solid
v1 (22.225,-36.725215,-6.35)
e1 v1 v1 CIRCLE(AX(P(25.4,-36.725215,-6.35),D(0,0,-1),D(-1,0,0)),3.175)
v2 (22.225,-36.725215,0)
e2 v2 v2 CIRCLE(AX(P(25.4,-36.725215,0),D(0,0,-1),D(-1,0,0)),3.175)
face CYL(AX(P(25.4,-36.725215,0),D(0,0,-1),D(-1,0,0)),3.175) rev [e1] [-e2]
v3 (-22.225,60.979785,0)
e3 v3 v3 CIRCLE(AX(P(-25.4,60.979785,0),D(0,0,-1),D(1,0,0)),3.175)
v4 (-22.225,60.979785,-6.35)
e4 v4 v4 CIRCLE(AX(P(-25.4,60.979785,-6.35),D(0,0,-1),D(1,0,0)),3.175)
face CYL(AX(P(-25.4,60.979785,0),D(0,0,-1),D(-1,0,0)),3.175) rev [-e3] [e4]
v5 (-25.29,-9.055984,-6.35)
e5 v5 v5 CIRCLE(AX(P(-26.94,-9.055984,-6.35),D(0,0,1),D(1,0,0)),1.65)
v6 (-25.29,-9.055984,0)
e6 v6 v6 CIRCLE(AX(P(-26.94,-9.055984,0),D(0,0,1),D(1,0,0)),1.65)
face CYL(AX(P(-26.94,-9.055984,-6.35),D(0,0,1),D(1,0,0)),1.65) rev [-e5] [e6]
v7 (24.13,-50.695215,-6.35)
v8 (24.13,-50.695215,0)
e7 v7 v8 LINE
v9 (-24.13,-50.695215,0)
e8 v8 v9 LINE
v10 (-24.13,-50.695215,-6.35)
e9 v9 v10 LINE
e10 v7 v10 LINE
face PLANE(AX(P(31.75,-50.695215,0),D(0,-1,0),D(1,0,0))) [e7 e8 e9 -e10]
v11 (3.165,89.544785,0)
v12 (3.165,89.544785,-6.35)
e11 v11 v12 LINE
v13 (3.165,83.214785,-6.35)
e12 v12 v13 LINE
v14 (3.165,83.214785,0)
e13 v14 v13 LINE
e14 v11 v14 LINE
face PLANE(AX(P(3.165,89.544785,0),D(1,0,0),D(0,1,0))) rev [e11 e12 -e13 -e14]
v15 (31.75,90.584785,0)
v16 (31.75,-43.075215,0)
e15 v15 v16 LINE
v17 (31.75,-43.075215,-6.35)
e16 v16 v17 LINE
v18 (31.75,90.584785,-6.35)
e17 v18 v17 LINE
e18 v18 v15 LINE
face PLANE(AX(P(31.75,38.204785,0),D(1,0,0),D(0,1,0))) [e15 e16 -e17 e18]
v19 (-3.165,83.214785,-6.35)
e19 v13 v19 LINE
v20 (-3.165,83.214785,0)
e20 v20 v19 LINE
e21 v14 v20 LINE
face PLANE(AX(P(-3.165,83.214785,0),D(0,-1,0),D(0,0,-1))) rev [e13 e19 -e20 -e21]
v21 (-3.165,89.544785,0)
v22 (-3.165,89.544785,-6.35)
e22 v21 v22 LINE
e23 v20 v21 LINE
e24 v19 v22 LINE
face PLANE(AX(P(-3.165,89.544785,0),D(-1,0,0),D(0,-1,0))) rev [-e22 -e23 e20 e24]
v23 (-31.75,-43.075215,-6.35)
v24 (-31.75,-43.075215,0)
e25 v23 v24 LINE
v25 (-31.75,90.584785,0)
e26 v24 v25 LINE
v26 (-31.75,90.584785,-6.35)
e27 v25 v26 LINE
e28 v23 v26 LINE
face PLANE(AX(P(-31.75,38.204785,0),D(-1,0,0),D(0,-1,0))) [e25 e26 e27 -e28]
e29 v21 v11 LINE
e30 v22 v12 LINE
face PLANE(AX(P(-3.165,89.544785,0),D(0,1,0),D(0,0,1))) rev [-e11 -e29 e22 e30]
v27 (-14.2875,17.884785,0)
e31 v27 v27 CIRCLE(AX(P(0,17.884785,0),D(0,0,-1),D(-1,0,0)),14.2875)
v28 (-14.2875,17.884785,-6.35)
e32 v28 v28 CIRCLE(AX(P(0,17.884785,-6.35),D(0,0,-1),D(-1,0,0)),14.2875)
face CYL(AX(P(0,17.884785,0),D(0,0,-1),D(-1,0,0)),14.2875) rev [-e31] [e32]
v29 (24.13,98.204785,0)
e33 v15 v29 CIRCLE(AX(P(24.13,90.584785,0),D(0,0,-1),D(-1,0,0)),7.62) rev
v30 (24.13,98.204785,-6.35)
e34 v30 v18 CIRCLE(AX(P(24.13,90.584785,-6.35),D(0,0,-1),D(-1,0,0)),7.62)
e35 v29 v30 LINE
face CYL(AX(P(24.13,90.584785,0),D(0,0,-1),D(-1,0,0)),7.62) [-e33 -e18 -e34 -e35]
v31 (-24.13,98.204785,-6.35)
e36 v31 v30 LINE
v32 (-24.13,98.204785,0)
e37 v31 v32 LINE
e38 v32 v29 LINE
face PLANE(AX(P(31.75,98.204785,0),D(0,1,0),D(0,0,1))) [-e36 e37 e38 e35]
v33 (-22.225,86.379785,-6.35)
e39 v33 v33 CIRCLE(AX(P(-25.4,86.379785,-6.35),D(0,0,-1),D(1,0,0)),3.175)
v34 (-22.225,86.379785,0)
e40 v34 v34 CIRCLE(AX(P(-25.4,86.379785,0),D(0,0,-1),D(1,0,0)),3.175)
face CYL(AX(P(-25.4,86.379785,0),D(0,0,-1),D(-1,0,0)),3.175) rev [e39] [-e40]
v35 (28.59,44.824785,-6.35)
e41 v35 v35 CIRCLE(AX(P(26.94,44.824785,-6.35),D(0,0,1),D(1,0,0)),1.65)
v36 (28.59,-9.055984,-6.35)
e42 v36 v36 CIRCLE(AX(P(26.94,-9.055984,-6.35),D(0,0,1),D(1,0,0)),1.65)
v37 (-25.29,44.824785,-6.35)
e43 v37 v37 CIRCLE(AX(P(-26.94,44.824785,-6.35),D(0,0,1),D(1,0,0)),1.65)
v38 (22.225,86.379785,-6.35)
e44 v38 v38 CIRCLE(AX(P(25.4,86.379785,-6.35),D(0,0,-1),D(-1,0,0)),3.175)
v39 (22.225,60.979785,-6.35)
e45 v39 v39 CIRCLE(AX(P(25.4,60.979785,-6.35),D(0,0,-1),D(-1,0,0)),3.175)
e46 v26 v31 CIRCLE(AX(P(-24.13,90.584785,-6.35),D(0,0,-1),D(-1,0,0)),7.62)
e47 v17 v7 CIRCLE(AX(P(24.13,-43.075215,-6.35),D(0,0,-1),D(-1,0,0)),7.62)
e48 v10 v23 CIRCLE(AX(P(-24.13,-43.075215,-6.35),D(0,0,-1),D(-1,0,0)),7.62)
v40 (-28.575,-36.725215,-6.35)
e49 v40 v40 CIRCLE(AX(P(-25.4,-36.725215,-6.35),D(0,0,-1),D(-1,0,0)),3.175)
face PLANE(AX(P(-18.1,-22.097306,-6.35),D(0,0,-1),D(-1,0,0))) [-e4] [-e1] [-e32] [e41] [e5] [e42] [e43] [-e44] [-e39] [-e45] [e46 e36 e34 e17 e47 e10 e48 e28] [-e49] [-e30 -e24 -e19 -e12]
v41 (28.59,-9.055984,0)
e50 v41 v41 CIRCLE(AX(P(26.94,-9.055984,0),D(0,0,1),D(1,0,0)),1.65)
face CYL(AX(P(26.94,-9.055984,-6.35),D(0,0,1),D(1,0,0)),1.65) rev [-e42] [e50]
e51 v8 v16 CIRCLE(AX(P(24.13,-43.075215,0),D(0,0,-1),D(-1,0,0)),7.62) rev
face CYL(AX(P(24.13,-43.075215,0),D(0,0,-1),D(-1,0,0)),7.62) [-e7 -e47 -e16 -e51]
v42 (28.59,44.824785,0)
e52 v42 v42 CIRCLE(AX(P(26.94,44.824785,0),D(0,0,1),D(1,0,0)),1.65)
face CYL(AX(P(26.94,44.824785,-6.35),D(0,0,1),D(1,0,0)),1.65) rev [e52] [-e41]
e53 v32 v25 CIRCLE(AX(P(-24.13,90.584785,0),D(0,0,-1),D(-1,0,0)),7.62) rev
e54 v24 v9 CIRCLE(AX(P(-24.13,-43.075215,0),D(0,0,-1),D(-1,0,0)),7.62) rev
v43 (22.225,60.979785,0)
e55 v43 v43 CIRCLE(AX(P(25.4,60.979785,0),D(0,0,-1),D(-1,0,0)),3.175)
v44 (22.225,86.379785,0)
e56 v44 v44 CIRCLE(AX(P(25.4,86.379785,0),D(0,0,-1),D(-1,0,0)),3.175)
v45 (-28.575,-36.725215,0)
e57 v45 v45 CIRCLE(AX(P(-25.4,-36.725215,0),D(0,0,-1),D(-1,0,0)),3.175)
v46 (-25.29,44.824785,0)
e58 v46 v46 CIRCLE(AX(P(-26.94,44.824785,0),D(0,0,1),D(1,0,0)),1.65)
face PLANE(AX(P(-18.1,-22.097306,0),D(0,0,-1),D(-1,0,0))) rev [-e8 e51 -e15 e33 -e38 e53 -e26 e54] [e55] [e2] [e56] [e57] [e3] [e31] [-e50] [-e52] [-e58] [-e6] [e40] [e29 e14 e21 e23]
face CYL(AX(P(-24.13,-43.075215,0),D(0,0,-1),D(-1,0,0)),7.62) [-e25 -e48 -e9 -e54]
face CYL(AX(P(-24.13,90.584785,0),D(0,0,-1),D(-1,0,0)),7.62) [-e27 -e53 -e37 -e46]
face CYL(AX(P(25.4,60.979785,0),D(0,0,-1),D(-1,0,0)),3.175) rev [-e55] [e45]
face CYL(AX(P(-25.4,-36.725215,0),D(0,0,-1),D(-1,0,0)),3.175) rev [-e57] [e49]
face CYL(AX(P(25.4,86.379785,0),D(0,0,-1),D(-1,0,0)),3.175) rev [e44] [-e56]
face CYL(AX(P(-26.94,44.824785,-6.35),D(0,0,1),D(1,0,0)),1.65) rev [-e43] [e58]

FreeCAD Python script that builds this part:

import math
import FreeCAD as App
import Part
import Sketcher

V = App.Vector
Q = App.Units.Quantity


def edges_at(feature, points):
    """Names of the edges that pass closest to the given points."""
    edges = feature.Shape.Edges
    near = lambda p: min(range(len(edges)), key=lambda i: edges[i].distToShape(Part.Vertex(*p))[0])
    return sorted({f"Edge{near(p) + 1}" for p in points})

doc = App.newDocument("Part")
params = doc.addObject("Spreadsheet::Sheet", "Params")
for row, (alias, value) in enumerate([
    ("pad1_length", "0.25 in"),
    ("sketch3_width", "2.5 in"),
    ("sketch3_height", "3.5 in"),
    ("pad2_length", "0.25 in"),
    ("sketch4_width", "1.1 in"),
    ("sketch4_height", "2.2 in"),
    ("sketch5_diameter", "0.25 in"),
    ("pad3_length", "0.25 in"),
    ("sketch7_diameter", "1.125 in"),
    ("pocket4_length", "0.25 in"),
    ("sketch8_diameter", "0.25 in"),
    ("sketch8_width", "2.5 in"),
    ("pad4_length", "0.25 in"),
    ("fillet_radius", "0.3 in"),
], start=1):
    params.set(f"A{row}", alias)
    params.set(f"B{row}", "=" + value)
    params.setAlias(f"B{row}", alias)

body = doc.addObject("PartDesign::Body", "Body")

# Sketch on XY plane
sketch1 = doc.addObject("Sketcher::SketchObject", "Sketch")
body.addObject(sketch1)
sketch1.AttachmentSupport = (doc.XY_Plane, [""])
sketch1.MapMode = "FlatFace"
sketch1.addGeometry([
    Part.LineSegment(V(-14.9, 29.8, 0), V(-19.7, 23.3, 0)),  # 0
    Part.ArcOfCircle(Part.Circle(V(-18.1, 22.1, 0), V(0, 0, 1), 2), math.radians(143), math.radians(180)),  # 1
    Part.LineSegment(V(-20.1, 22.1, 0), V(-20.1, -22.1, 0)),  # 2
    Part.ArcOfCircle(Part.Circle(V(-18.1, -22.1, 0), V(0, 0, 1), 2), math.radians(-180), math.radians(-143)),  # 3
    Part.LineSegment(V(-19.7, -23.3, 0), V(-14.9, -29.8, 0)),  # 4
    Part.ArcOfCircle(Part.Circle(V(-13.3, -28.5, 0), V(0, 0, 1), 2), math.radians(-143), math.radians(-90)),  # 5
    Part.LineSegment(V(-13.3, -30.6, 0), V(13.3, -30.6, 0)),  # 6
    Part.ArcOfCircle(Part.Circle(V(13.3, -28.5, 0), V(0, 0, 1), 2), math.radians(-90), math.radians(-37)),  # 7
    Part.LineSegment(V(14.9, -29.8, 0), V(19.7, -23.3, 0)),  # 8
    Part.ArcOfCircle(Part.Circle(V(18.1, -22.1, 0), V(0, 0, 1), 2), math.radians(-37), math.radians(0)),  # 9
    Part.LineSegment(V(20.1, -22.1, 0), V(20.1, 22.1, 0)),  # 10
    Part.ArcOfCircle(Part.Circle(V(18.1, 22.1, 0), V(0, 0, 1), 2), math.radians(0), math.radians(37)),  # 11
    Part.LineSegment(V(19.7, 23.3, 0), V(14.9, 29.8, 0)),  # 12
    Part.ArcOfCircle(Part.Circle(V(13.3, 28.5, 0), V(0, 0, 1), 2), math.radians(37), math.radians(90)),  # 13
    Part.LineSegment(V(13.3, 30.6, 0), V(-13.3, 30.6, 0)),  # 14
    Part.ArcOfCircle(Part.Circle(V(-13.3, 28.5, 0), V(0, 0, 1), 2), math.radians(90), math.radians(143)),  # 15
], False)
sketch1.addConstraint([
    Sketcher.Constraint("Tangent", 0, 2, 1, 1),
    Sketcher.Constraint("Tangent", 1, 2, 2, 1),
    Sketcher.Constraint("Tangent", 2, 2, 3, 1),
    Sketcher.Constraint("Tangent", 3, 2, 4, 1),
    Sketcher.Constraint("Tangent", 4, 2, 5, 1),
    Sketcher.Constraint("Tangent", 5, 2, 6, 1),
    Sketcher.Constraint("Tangent", 6, 2, 7, 1),
    Sketcher.Constraint("Tangent", 7, 2, 8, 1),
    Sketcher.Constraint("Tangent", 8, 2, 9, 1),
    Sketcher.Constraint("Tangent", 9, 2, 10, 1),
    Sketcher.Constraint("Tangent", 10, 2, 11, 1),
    Sketcher.Constraint("Tangent", 11, 2, 12, 1),
    Sketcher.Constraint("Tangent", 12, 2, 13, 1),
    Sketcher.Constraint("Tangent", 13, 2, 14, 1),
    Sketcher.Constraint("Tangent", 14, 2, 15, 1),
    Sketcher.Constraint("Tangent", 15, 2, 0, 1),
    Sketcher.Constraint("Vertical", 2),
    Sketcher.Constraint("Horizontal", 6),
    Sketcher.Constraint("Vertical", 10),
    Sketcher.Constraint("Horizontal", 14),
    Sketcher.Constraint("Equal", 1, 3),
    Sketcher.Constraint("Equal", 3, 5),
    Sketcher.Constraint("Equal", 5, 7),
    Sketcher.Constraint("Equal", 7, 9),
    Sketcher.Constraint("Equal", 9, 11),
    Sketcher.Constraint("Equal", 11, 13),
    Sketcher.Constraint("Equal", 13, 15),
    Sketcher.Constraint("Symmetric", 1, 3, 9, 3, -1, 1),
    Sketcher.Constraint("Symmetric", 5, 3, 13, 3, -1, 1),
    Sketcher.Constraint("Symmetric", 4, 2, 7, 2, -2),
    Sketcher.Constraint("Symmetric", 0, 2, 11, 2, -2),
    Sketcher.Constraint("Radius", 1, Q("2 mm")),
    Sketcher.Constraint("DistanceX", 6, 1, 6, 2, Q("26.50231 mm")),
    Sketcher.Constraint("DistanceX", 1, 3, -1, 1, Q("18.1 mm")),
    Sketcher.Constraint("DistanceY", 5, 3, -1, 1, Q("28.55 mm")),
    Sketcher.Constraint("DistanceX", 4, 2, 7, 3, Q("28.1012 mm")),
])
pad1 = doc.addObject("PartDesign::Pad", "Pad")
body.addObject(pad1)
pad1.Profile = sketch1
pad1.setExpression("Length", "Params.pad1_length")
pad1.Reversed = True

# Sketch on XY plane
sketch2 = doc.addObject("Sketcher::SketchObject", "Sketch001")
body.addObject(sketch2)
sketch2.AttachmentSupport = (doc.XY_Plane, [""])
sketch2.MapMode = "FlatFace"
sketch2.AttachmentOffset = App.Placement(V(0, 0, -0.25 * 25.4), App.Rotation())
sketch2.addGeometry([
    Part.Circle(V(-17.3, 21.9, 0), V(0, 0, 1), 1.4),  # 0
    Part.Circle(V(-17.3, -0.1, 0), V(0, 0, 1), 1.4),  # 1
    Part.Circle(V(-17.3, -22.1, 0), V(0, 0, 1), 1.4),  # 2
    Part.Circle(V(-11, -27.8, 0), V(0, 0, 1), 1.4),  # 3
    Part.Circle(V(11, -27.8, 0), V(0, 0, 1), 1.4),  # 4
    Part.Circle(V(17.3, -22.1, 0), V(0, 0, 1), 1.4),  # 5
    Part.Circle(V(17.3, -0.1, 0), V(0, 0, 1), 1.4),  # 6
    Part.Circle(V(17.3, 21.9, 0), V(0, 0, 1), 1.4),  # 7
], False)
sketch2.addConstraint([
    Sketcher.Constraint("Equal", 0, 1),
    Sketcher.Constraint("Equal", 1, 2),
    Sketcher.Constraint("Equal", 3, 4),
    Sketcher.Constraint("Equal", 2, 5),
    Sketcher.Constraint("Equal", 5, 6),
    Sketcher.Constraint("Equal", 6, 7),
    Sketcher.Constraint("Symmetric", 3, 3, 4, 3, -2),
    Sketcher.Constraint("Symmetric", 2, 3, 5, 3, -2),
    Sketcher.Constraint("Symmetric", 1, 3, 6, 3, -2),
    Sketcher.Constraint("Symmetric", 0, 3, 7, 3, -2),
    Sketcher.Constraint("Vertical", 0, 3, 1, 3),
    Sketcher.Constraint("Vertical", 1, 3, 2, 3),
    Sketcher.Constraint("Diameter", 0, Q("2.7 mm")),
    Sketcher.Constraint("Diameter", 3, Q("2.77 mm")),
    Sketcher.Constraint("DistanceX", 0, 3, -1, 1, Q("17.3 mm")),
    Sketcher.Constraint("DistanceX", 3, 3, -1, 1, Q("11 mm")),
    Sketcher.Constraint("DistanceY", 3, 3, -1, 1, Q("27.75 mm")),
    Sketcher.Constraint("DistanceY", 1, 3, 0, 3, Q("22 mm")),
    Sketcher.Constraint("DistanceY", 2, 3, 1, 3, Q("22 mm")),
    Sketcher.Constraint("DistanceY", -1, 1, 0, 3, Q("21.948784 mm")),
])
pocket1 = doc.addObject("PartDesign::Pocket", "Pocket")
body.addObject(pocket1)
pocket1.Profile = sketch2
pocket1.Type = "ThroughAll"
pocket1.Reversed = True

# Sketch on XY plane
sketch3 = doc.addObject("Sketcher::SketchObject", "Sketch002")
body.addObject(sketch3)
sketch3.AttachmentSupport = (doc.XY_Plane, [""])
sketch3.MapMode = "FlatFace"
sketch3.AttachmentOffset = App.Placement(V(0, 0, -0.25 * 25.4), App.Rotation())
sketch3.addGeometry([
    Part.LineSegment(V(32, 38, 0), V(32, -51, 0)),  # 0
    Part.LineSegment(V(32, -51, 0), V(-32, -51, 0)),  # 1
    Part.LineSegment(V(-32, -51, 0), V(-32, 38, 0)),  # 2
    Part.LineSegment(V(-32, 38, 0), V(32, 38, 0)),  # 3
    Part.LineSegment(V(-19, -24, 0), V(19, -24, 0)),  # 4
    Part.LineSegment(V(19, -24, 0), V(19, 24, 0)),  # 5
    Part.LineSegment(V(19, 24, 0), V(-19, 24, 0)),  # 6
    Part.LineSegment(V(-19, 24, 0), V(-19, -24, 0)),  # 7
], False)
sketch3.addConstraint([
    Sketcher.Constraint("Coincident", 0, 2, 1, 1),
    Sketcher.Constraint("Coincident", 1, 2, 2, 1),
    Sketcher.Constraint("Coincident", 2, 2, 3, 1),
    Sketcher.Constraint("Coincident", 3, 2, 0, 1),
    Sketcher.Constraint("Coincident", 4, 2, 5, 1),
    Sketcher.Constraint("Coincident", 5, 2, 6, 1),
    Sketcher.Constraint("Coincident", 6, 2, 7, 1),
    Sketcher.Constraint("Coincident", 7, 2, 4, 1),
    Sketcher.Constraint("Vertical", 0),
    Sketcher.Constraint("Horizontal", 1),
    Sketcher.Constraint("Vertical", 2),
    Sketcher.Constraint("Horizontal", 3),
    Sketcher.Constraint("Horizontal", 4),
    Sketcher.Constraint("Vertical", 5),
    Sketcher.Constraint("Horizontal", 6),
    Sketcher.Constraint("Vertical", 7),
    Sketcher.Constraint("Symmetric", 4, 2, 6, 2, -1, 1),
    Sketcher.Constraint("DistanceX", 1, 2, 1, 1, Q("2.5 in")),
    Sketcher.Constraint("DistanceY", 0, 2, 0, 1, Q("3.5 in")),
    Sketcher.Constraint("DistanceX", -1, 1, 0, 2, Q("1.25 in")),
    Sketcher.Constraint("DistanceY", 5, 1, 5, 2, Q("47.23754 mm")),
    Sketcher.Constraint("DistanceX", 4, 1, 4, 2, Q("38.321076 mm")),
    Sketcher.Constraint("DistanceY", 0, 2, -1, 1, Q("50.695216 mm")),
])
sketch3.setExpression("Constraints[17]", "Params.sketch3_width")
sketch3.setExpression("Constraints[18]", "Params.sketch3_height")
pad2 = doc.addObject("PartDesign::Pad", "Pad001")
body.addObject(pad2)
pad2.Profile = sketch3
pad2.setExpression("Length", "Params.pad2_length")

# Sketch on XY plane
sketch4 = doc.addObject("Sketcher::SketchObject", "Sketch003")
body.addObject(sketch4)
sketch4.AttachmentSupport = (doc.XY_Plane, [""])
sketch4.MapMode = "FlatFace"
sketch4.addGeometry([
    Part.LineSegment(V(-14, 31, 0), V(-14, -25, 0)),
    Part.LineSegment(V(-14, -25, 0), V(14, -25, 0)),
    Part.LineSegment(V(14, -25, 0), V(14, 31, 0)),
    Part.LineSegment(V(14, 31, 0), V(-14, 31, 0)),
], False)
sketch4.addConstraint([
    Sketcher.Constraint("Coincident", 0, 2, 1, 1),
    Sketcher.Constraint("Coincident", 1, 2, 2, 1),
    Sketcher.Constraint("Coincident", 2, 2, 3, 1),
    Sketcher.Constraint("Coincident", 3, 2, 0, 1),
    Sketcher.Constraint("Vertical", 0),
    Sketcher.Constraint("Horizontal", 1),
    Sketcher.Constraint("Vertical", 2),
    Sketcher.Constraint("Horizontal", 3),
    Sketcher.Constraint("DistanceX", 1, 1, 1, 2, Q("1.1 in")),
    Sketcher.Constraint("DistanceY", 0, 2, 0, 1, Q("2.2 in")),
    Sketcher.Constraint("DistanceX", 0, 2, -1, 1, Q("0.55 in")),
    Sketcher.Constraint("DistanceY", 0, 2, -1, 1, Q("24.931216 mm")),
])
sketch4.setExpression("Constraints[8]", "Params.sketch4_width")
sketch4.setExpression("Constraints[9]", "Params.sketch4_height")
pocket2 = doc.addObject("PartDesign::Pocket", "Pocket001")
body.addObject(pocket2)
pocket2.Profile = sketch4
pocket2.Type = "ThroughAll"

# Sketch on XY plane
sketch5 = doc.addObject("Sketcher::SketchObject", "Sketch004")
body.addObject(sketch5)
sketch5.AttachmentSupport = (doc.XY_Plane, [""])
sketch5.MapMode = "FlatFace"
sketch5.AttachmentOffset = App.Placement(V(0, 0, -0.25 * 25.4), App.Rotation())
sketch5.addGeometry([
    Part.Circle(V(25.4, -36.7, 0), V(0, 0, 1), 3.2),
    Part.Circle(V(-25.4, -36.7, 0), V(0, 0, 1), 3.2),
], False)
sketch5.addConstraint([
    Sketcher.Constraint("Equal", 0, 1),
    Sketcher.Constraint("Symmetric", 0, 3, 1, 3, -2),
    Sketcher.Constraint("Diameter", 0, Q("0.25 in")),
    Sketcher.Constraint("DistanceX", -1, 1, 0, 3, Q("1 in")),
    Sketcher.Constraint("DistanceY", 0, 3, -1, 1, Q("36.725215 mm")),
])
sketch5.setExpression("Constraints[2]", "Params.sketch5_diameter")
pocket3 = doc.addObject("PartDesign::Pocket", "Pocket002")
body.addObject(pocket3)
pocket3.Profile = sketch5
pocket3.Type = "ThroughAll"
pocket3.Reversed = True

# Sketch on XY plane
sketch6 = doc.addObject("Sketcher::SketchObject", "Sketch005")
body.addObject(sketch6)
sketch6.AttachmentSupport = (doc.XY_Plane, [""])
sketch6.MapMode = "FlatFace"
sketch6.AttachmentOffset = App.Placement(V(0, 0, -0.25 * 25.4), App.Rotation())
sketch6.addGeometry([
    Part.LineSegment(V(21, 32, 0), V(21, -26, 0)),
    Part.LineSegment(V(21, -26, 0), V(-21, -26, 0)),
    Part.LineSegment(V(-21, -26, 0), V(-21, 32, 0)),
    Part.LineSegment(V(-21, 32, 0), V(21, 32, 0)),
], False)
sketch6.addConstraint([
    Sketcher.Constraint("Coincident", 0, 2, 1, 1),
    Sketcher.Constraint("Coincident", 1, 2, 2, 1),
    Sketcher.Constraint("Coincident", 2, 2, 3, 1),
    Sketcher.Constraint("Coincident", 3, 2, 0, 1),
    Sketcher.Constraint("Vertical", 0),
    Sketcher.Constraint("Horizontal", 1),
    Sketcher.Constraint("Vertical", 2),
    Sketcher.Constraint("Horizontal", 3),
    Sketcher.Constraint("DistanceX", 1, 2, 1, 1, Q("41.724969 mm")),
    Sketcher.Constraint("DistanceY", 0, 2, 0, 1, Q("57.858351 mm")),
    Sketcher.Constraint("DistanceY", -1, 1, 2, 2, Q("32.096618 mm")),
    Sketcher.Constraint("DistanceX", -1, 1, 0, 2, Q("20.862484 mm")),
])
pad3 = doc.addObject("PartDesign::Pad", "Pad002")
body.addObject(pad3)
pad3.Profile = sketch6
pad3.setExpression("Length", "Params.pad3_length")

# Sketch on XY plane
sketch7 = doc.addObject("Sketcher::SketchObject", "Sketch006")
body.addObject(sketch7)
sketch7.AttachmentSupport = (doc.XY_Plane, [""])
sketch7.MapMode = "FlatFace"
sketch7.AttachmentOffset = App.Placement(V(0, 0, -0.25 * 25.4), App.Rotation())
sketch7.addGeometry(Part.Circle(V(0, 18, 0), V(0, 0, 1), 14), False)
sketch7.addConstraint([
    Sketcher.Constraint("PointOnObject", 0, 3, -2),
    Sketcher.Constraint("Diameter", 0, Q("1.125 in")),
    Sketcher.Constraint("DistanceY", -1, 1, 0, 3, Q("17.884784 mm")),
])
sketch7.setExpression("Constraints[1]", "Params.sketch7_diameter")
pocket4 = doc.addObject("PartDesign::Pocket", "Pocket003")
body.addObject(pocket4)
pocket4.Profile = sketch7
pocket4.setExpression("Length", "Params.pocket4_length")
pocket4.Reversed = True

# Sketch on XY plane
sketch8 = doc.addObject("Sketcher::SketchObject", "Sketch007")
body.addObject(sketch8)
sketch8.AttachmentSupport = (doc.XY_Plane, [""])
sketch8.MapMode = "FlatFace"
sketch8.AttachmentOffset = App.Placement(V(0, 0, -0.25 * 25.4), App.Rotation())
sketch8.addGeometry([
    Part.LineSegment(V(31.8, 98.2, 0), V(31.8, 38.2, 0)),  # 0
    Part.LineSegment(V(31.8, 38.2, 0), V(-31.8, 38.2, 0)),  # 1
    Part.LineSegment(V(-31.8, 38.2, 0), V(-31.8, 98.2, 0)),  # 2
    Part.LineSegment(V(-31.8, 98.2, 0), V(31.8, 98.2, 0)),  # 3
    Part.Circle(V(25.4, 61, 0), V(0, 0, 1), 3.2),  # 4
    Part.Circle(V(-25.4, 61, 0), V(0, 0, 1), 3.2),  # 5
    Part.Circle(V(25.4, 86.4, 0), V(0, 0, 1), 3.2),  # 6
    Part.LineSegment(V(-3.2, 83.2, 0), V(3.2, 83.2, 0)),  # 7
    Part.LineSegment(V(3.2, 83.2, 0), V(3.2, 89.5, 0)),  # 8
    Part.LineSegment(V(3.2, 89.5, 0), V(-3.2, 89.5, 0)),  # 9
    Part.LineSegment(V(-3.2, 89.5, 0), V(-3.2, 83.2, 0)),  # 10
    Part.Circle(V(-25.4, 86.4, 0), V(0, 0, 1), 3.2),  # 11
], False)
sketch8.addConstraint([
    Sketcher.Constraint("Coincident", 0, 2, 1, 1),
    Sketcher.Constraint("Coincident", 1, 2, 2, 1),
    Sketcher.Constraint("Coincident", 2, 2, 3, 1),
    Sketcher.Constraint("Coincident", 3, 2, 0, 1),
    Sketcher.Constraint("Coincident", 7, 2, 8, 1),
    Sketcher.Constraint("Coincident", 8, 2, 9, 1),
    Sketcher.Constraint("Coincident", 9, 2, 10, 1),
    Sketcher.Constraint("Coincident", 10, 2, 7, 1),
    Sketcher.Constraint("Vertical", 0),
    Sketcher.Constraint("Horizontal", 1),
    Sketcher.Constraint("Vertical", 2),
    Sketcher.Constraint("Horizontal", 3),
    Sketcher.Constraint("Horizontal", 7),
    Sketcher.Constraint("Vertical", 8),
    Sketcher.Constraint("Horizontal", 9),
    Sketcher.Constraint("Vertical", 10),
    Sketcher.Constraint("Equal", 4, 5),
    Sketcher.Constraint("Equal", 5, 6),
    Sketcher.Constraint("Equal", 6, 11),
    Sketcher.Constraint("Symmetric", 4, 3, 5, 3, -2),
    Sketcher.Constraint("Symmetric", 6, 3, 11, 3, -2),
    Sketcher.Constraint("Vertical", 4, 3, 6, 3),
    Sketcher.Constraint("Equal", 9, 8),
    Sketcher.Constraint("Diameter", 4, Q("0.25 in")),
    Sketcher.Constraint("DistanceX", 1, 2, 1, 1, Q("2.5 in")),
    Sketcher.Constraint("DistanceX", -1, 1, 4, 3, Q("1 in")),
    Sketcher.Constraint("DistanceY", 4, 3, 6, 3, Q("1 in")),
    Sketcher.Constraint("DistanceX", -1, 1, 0, 2, Q("1.25 in")),
    Sketcher.Constraint("DistanceX", 7, 1, 7, 2, Q("6.33 mm")),
    Sketcher.Constraint("DistanceY", 0, 2, 0, 1, Q("60 mm")),
    Sketcher.Constraint("DistanceX", -1, 1, 7, 2, Q("3.165 mm")),
    Sketcher.Constraint("DistanceY", 0, 2, 4, 3, Q("22.775 mm")),
    Sketcher.Constraint("DistanceY", 7, 2, 6, 3, Q("3.165 mm")),
    Sketcher.Constraint("DistanceY", -1, 1, 4, 3, Q("60.979785 mm")),
])
sketch8.setExpression("Constraints[23]", "Params.sketch8_diameter")
sketch8.setExpression("Constraints[24]", "Params.sketch8_width")
pad4 = doc.addObject("PartDesign::Pad", "Pad003")
body.addObject(pad4)
pad4.Profile = sketch8
pad4.setExpression("Length", "Params.pad4_length")
doc.recompute()

fillet = doc.addObject("PartDesign::Fillet", "Fillet")
body.addObject(fillet)
fillet.Base = (pad4, edges_at(pad4, [
    (31.75, 98.205, -3.175),
    (-31.75, 98.205, -3.175),
    (-31.75, -50.695, -3.175),
    (31.75, -50.695, -3.175),
]))
fillet.setExpression("Radius", "Params.fillet_radius")

# Sketch on XY plane
sketch9 = doc.addObject("Sketcher::SketchObject", "Sketch008")
body.addObject(sketch9)
sketch9.AttachmentSupport = (doc.XY_Plane, [""])
sketch9.MapMode = "FlatFace"
sketch9.addGeometry([
    Part.Circle(V(-26.9, 44.8, 0), V(0, 0, 1), 1.6),
    Part.Circle(V(26.9, 44.8, 0), V(0, 0, 1), 1.6),
    Part.Circle(V(-26.9, -9.1, 0), V(0, 0, 1), 1.6),
    Part.Circle(V(26.9, -9.1, 0), V(0, 0, 1), 1.6),
], False)
sketch9.addConstraint([
    Sketcher.Constraint("Equal", 0, 1),
    Sketcher.Constraint("Equal", 1, 2),
    Sketcher.Constraint("Equal", 2, 3),
    Sketcher.Constraint("Symmetric", 0, 3, 1, 3, -2),
    Sketcher.Constraint("Symmetric", 2, 3, 3, 3, -2),
    Sketcher.Constraint("Vertical", 0, 3, 2, 3),
    Sketcher.Constraint("Diameter", 0, Q("3.3 mm")),
    Sketcher.Constraint("DistanceX", 0, 3, -1, 1, Q("26.94 mm")),
    Sketcher.Constraint("DistanceY", 2, 3, 0, 3, Q("53.880768 mm")),
    Sketcher.Constraint("DistanceY", -1, 1, 0, 3, Q("44.824784 mm")),
])
pocket5 = doc.addObject("PartDesign::Pocket", "Pocket004")
body.addObject(pocket5)
pocket5.Profile = sketch9
pocket5.Type = "ThroughAll"

doc.recompute()
